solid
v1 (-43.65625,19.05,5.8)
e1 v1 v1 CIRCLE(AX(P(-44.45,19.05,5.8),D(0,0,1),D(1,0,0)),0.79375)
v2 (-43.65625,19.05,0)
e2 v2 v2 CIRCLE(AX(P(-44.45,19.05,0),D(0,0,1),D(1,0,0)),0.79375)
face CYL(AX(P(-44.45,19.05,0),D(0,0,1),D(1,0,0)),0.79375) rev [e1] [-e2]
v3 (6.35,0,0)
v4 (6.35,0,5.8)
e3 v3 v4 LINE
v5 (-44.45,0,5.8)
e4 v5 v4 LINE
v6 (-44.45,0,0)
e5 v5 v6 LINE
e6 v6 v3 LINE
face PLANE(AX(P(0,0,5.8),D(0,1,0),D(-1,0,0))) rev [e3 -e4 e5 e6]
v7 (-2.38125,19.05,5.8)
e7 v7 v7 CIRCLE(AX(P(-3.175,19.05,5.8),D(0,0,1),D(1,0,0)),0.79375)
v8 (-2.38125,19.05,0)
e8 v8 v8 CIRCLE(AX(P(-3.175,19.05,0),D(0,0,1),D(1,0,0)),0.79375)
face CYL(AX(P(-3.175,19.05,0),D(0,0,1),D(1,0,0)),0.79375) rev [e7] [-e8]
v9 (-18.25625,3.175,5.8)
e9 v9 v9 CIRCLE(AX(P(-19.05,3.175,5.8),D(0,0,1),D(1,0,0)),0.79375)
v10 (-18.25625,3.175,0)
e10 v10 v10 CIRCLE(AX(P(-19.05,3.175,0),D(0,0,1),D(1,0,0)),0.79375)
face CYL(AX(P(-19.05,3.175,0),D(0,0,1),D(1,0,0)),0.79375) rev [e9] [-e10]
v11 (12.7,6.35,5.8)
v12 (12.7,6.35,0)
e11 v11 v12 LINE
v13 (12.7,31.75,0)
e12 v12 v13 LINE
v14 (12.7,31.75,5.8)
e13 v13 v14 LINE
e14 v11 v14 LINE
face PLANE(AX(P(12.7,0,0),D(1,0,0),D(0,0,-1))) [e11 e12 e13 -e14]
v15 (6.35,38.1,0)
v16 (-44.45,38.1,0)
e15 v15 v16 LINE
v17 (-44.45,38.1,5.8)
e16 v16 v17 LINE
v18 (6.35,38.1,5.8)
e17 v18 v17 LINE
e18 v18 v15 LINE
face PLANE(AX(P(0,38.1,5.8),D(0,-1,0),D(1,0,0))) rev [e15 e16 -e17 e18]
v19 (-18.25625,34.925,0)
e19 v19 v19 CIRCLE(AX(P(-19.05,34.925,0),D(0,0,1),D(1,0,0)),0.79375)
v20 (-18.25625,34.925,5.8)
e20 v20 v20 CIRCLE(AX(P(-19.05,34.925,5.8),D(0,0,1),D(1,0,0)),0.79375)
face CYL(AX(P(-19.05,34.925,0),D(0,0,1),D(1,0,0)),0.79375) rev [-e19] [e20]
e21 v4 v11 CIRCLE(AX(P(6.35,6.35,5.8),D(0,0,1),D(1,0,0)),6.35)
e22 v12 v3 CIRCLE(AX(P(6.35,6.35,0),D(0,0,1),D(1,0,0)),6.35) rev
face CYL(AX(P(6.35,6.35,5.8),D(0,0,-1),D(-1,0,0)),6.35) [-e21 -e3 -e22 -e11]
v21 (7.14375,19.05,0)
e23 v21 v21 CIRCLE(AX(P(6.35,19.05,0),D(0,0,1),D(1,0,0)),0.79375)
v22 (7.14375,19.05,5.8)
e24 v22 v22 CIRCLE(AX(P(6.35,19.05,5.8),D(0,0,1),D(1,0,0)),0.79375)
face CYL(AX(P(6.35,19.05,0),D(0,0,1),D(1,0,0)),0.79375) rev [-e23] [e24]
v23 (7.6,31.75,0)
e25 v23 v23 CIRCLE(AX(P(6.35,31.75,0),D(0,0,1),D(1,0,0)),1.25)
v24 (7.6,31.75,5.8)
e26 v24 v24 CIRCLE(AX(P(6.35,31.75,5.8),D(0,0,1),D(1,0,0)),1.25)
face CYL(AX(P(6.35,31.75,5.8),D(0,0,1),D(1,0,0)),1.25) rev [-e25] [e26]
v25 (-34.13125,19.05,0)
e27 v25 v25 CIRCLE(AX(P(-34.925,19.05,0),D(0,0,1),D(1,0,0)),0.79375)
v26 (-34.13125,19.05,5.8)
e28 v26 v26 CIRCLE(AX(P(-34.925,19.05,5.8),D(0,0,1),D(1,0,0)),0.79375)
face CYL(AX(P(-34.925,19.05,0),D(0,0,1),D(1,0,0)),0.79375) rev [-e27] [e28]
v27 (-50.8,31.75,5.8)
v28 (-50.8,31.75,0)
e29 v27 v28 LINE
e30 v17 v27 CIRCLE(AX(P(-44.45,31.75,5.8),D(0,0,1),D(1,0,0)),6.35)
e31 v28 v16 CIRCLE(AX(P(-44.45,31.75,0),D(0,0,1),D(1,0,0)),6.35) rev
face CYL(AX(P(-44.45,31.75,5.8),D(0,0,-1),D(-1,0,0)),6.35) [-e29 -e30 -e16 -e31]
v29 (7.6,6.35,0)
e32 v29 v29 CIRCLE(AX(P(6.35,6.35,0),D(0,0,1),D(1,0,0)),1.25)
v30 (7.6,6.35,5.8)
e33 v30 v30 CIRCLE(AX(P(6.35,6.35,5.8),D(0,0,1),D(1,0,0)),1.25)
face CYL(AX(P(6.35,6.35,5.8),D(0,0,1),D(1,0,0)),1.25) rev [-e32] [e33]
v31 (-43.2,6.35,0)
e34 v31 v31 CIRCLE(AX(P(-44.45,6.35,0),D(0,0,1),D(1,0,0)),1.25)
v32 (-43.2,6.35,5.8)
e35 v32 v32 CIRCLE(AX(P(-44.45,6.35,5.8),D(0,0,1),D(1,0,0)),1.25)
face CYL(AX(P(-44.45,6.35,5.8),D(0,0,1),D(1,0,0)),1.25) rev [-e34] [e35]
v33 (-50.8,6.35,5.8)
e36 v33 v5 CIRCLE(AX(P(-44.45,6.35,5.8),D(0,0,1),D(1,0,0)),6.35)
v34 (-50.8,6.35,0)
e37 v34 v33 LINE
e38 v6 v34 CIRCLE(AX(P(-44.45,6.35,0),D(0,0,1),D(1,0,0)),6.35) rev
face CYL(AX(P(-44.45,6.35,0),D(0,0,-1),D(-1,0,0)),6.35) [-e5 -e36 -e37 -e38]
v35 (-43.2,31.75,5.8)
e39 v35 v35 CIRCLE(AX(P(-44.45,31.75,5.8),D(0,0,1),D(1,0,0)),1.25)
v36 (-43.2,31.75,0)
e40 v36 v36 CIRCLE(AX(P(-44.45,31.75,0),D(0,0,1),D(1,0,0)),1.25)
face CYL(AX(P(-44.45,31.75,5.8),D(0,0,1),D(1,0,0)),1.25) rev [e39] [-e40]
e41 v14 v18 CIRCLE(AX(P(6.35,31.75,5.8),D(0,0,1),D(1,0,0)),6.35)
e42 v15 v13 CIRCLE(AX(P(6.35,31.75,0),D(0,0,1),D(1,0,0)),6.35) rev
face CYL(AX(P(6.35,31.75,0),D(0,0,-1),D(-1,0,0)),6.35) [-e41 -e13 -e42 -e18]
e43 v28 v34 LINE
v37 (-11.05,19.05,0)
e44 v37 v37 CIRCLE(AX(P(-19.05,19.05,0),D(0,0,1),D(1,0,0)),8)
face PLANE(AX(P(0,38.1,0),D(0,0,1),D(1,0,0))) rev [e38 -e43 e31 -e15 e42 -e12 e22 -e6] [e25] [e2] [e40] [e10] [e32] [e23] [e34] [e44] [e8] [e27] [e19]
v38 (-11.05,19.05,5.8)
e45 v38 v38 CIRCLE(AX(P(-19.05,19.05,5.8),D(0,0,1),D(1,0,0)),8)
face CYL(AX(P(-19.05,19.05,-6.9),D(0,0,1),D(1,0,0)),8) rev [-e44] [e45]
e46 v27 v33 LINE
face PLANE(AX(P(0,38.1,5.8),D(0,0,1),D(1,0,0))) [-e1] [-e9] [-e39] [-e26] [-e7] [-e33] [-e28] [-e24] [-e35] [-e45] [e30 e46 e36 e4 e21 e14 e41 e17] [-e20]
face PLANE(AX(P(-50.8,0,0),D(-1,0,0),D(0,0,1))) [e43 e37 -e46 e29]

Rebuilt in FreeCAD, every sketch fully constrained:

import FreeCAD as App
import Part
import Sketcher
from FreeCAD import Vector


def edges_at(feature, points):
    """Names of the edges that pass closest to the given points."""
    edges = feature.Shape.Edges
    near = lambda p: min(range(len(edges)), key=lambda i: edges[i].distToShape(Part.Vertex(*p))[0])
    return sorted({f"Edge{near(p) + 1}" for p in points})


def add_polygon(sketch, points):
    """Adds a closed chain of lines whose ends are joined by coincident constraints."""
    first, n = sketch.GeometryCount, len(points)
    for a, b in zip(points, points[1:] + points[:1]):
        sketch.addGeometry(Part.LineSegment(App.Vector(*a, 0), App.Vector(*b, 0)), False)
    for i in range(n):
        sketch.addConstraint(Sketcher.Constraint("Coincident", first + i, 2, first + (i + 1) % n, 1))

doc = App.newDocument("Part")
params = doc.addObject("Spreadsheet::Sheet", "Params")
for row, (alias, value) in enumerate([
    ("sketch1_width", "38.1 mm"),
    ("pad1_length", "5.8 mm"),
    ("sketch2_diameter", "16 mm"),
    ("pocket1_length", "12.7 mm"),
    ("sketch4_width", "12.7 mm"),
    ("sketch4_height", "38.1 mm"),
    ("pad2_length", "5.8 mm"),
    ("sketch5_diameter", "2.5 mm"),
    ("hole_diameter", "2.5 mm"),
    ("hole_depth", "7.5 mm"),
    ("fillet_radius", "6.35 mm"),
], start=1):
    params.set(f"A{row}", alias)
    params.set(f"B{row}", "=" + value)
    params.setAlias(f"B{row}", alias)

body = doc.addObject("PartDesign::Body", "Body")

sketch1 = doc.addObject("Sketcher::SketchObject", "Sketch")
body.addObject(sketch1)
sketch1.AttachmentSupport = (doc.XY_Plane, [""])
sketch1.MapMode = "FlatFace"
add_polygon(sketch1, [(-38, 38), (-38, 0), (0, 0), (0, 38)])
sketch1.addConstraint(Sketcher.Constraint("Vertical", 0))
sketch1.addConstraint(Sketcher.Constraint("Horizontal", 1))
sketch1.addConstraint(Sketcher.Constraint("Vertical", 2))
sketch1.addConstraint(Sketcher.Constraint("Horizontal", 3))
sketch1.addConstraint(Sketcher.Constraint("Coincident", 1, 2, -1, 1))
sketch1.addConstraint(Sketcher.Constraint("Equal", 3, 0))
sketch1.addConstraint(Sketcher.Constraint("DistanceX", 1, 1, 1, 2, 38.1))
sketch1.setExpression("Constraints[10]", "Params.sketch1_width")
pad1 = doc.addObject("PartDesign::Pad", "Pad")
body.addObject(pad1)
pad1.Profile = sketch1
pad1.setExpression("Length", "Params.pad1_length")

sketch2 = doc.addObject("Sketcher::SketchObject", "Sketch001")
body.addObject(sketch2)
sketch2.AttachmentSupport = (doc.XY_Plane, [""])
sketch2.MapMode = "FlatFace"
sketch2.AttachmentOffset = App.Placement(Vector(0, 0, 5.8), App.Rotation())
sketch2.addGeometry(Part.Circle(Vector(-19, 19, 0), Vector(0, 0, 1), 8), False)
sketch2.addConstraint(Sketcher.Constraint("Diameter", 0, 16.0))
sketch2.addConstraint(Sketcher.Constraint("DistanceX", 0, 3, -1, 1, 19.05))
sketch2.addConstraint(Sketcher.Constraint("DistanceY", -1, 1, 0, 3, 19.05))
sketch2.setExpression("Constraints[0]", "Params.sketch2_diameter")
pocket1 = doc.addObject("PartDesign::Pocket", "Pocket")
body.addObject(pocket1)
pocket1.Profile = sketch2
pocket1.setExpression("Length", "Params.pocket1_length")

sketch3 = doc.addObject("Sketcher::SketchObject", "Sketch002")
body.addObject(sketch3)
sketch3.AttachmentSupport = (doc.XY_Plane, [""])
sketch3.MapMode = "FlatFace"
sketch3.AttachmentOffset = App.Placement(Vector(0, 0, 5.8), App.Rotation())
sketch3.addGeometry(Part.Circle(Vector(-34.9, 19.1, 0), Vector(0, 0, 1), 0.8), False)
sketch3.addGeometry(Part.Circle(Vector(-19.1, 34.9, 0), Vector(0, 0, 1), 0.8), False)
sketch3.addGeometry(Part.Circle(Vector(-3.2, 19.1, 0), Vector(0, 0, 1), 0.8), False)
sketch3.addGeometry(Part.Circle(Vector(-19.1, 3.2, 0), Vector(0, 0, 1), 0.8), False)
sketch3.addConstraint(Sketcher.Constraint("Equal", 0, 1))
sketch3.addConstraint(Sketcher.Constraint("Equal", 1, 2))
sketch3.addConstraint(Sketcher.Constraint("Equal", 2, 3))
sketch3.addConstraint(Sketcher.Constraint("Horizontal", 0, 3, 2, 3))
sketch3.addConstraint(Sketcher.Constraint("Vertical", 1, 3, 3, 3))
sketch3.addConstraint(Sketcher.Constraint("Diameter", 0, 1.5875))
sketch3.addConstraint(Sketcher.Constraint("DistanceY", -1, 1, 0, 3, 19.05))
sketch3.addConstraint(Sketcher.Constraint("DistanceX", 1, 3, -1, 1, 19.05))
sketch3.addConstraint(Sketcher.Constraint("DistanceX", 0, 3, 2, 3, 31.75))
sketch3.addConstraint(Sketcher.Constraint("DistanceY", 3, 3, 1, 3, 31.75))
sketch3.addConstraint(Sketcher.Constraint("DistanceX", 0, 3, -1, 1, 34.925))
sketch3.addConstraint(Sketcher.Constraint("DistanceY", -1, 1, 1, 3, 34.925))
pocket2 = doc.addObject("PartDesign::Pocket", "Pocket001")
body.addObject(pocket2)
pocket2.Profile = sketch3
pocket2.Type = "ThroughAll"

sketch4 = doc.addObject("Sketcher::SketchObject", "Sketch003")
body.addObject(sketch4)
sketch4.AttachmentSupport = (doc.XY_Plane, [""])
sketch4.MapMode = "FlatFace"
sketch4.AttachmentOffset = App.Placement(Vector(0, 0, 5.8), App.Rotation())
add_polygon(sketch4, [(0, 38), (0, 0), (13, 0), (13, 38)])
add_polygon(sketch4, [(-51, 38), (-51, 0), (-38, 0), (-38, 38)])
sketch4.addConstraint(Sketcher.Constraint("Vertical", 0))
sketch4.addConstraint(Sketcher.Constraint("Horizontal", 1))
sketch4.addConstraint(Sketcher.Constraint("Vertical", 2))
sketch4.addConstraint(Sketcher.Constraint("Horizontal", 3))
sketch4.addConstraint(Sketcher.Constraint("Vertical", 4))
sketch4.addConstraint(Sketcher.Constraint("Horizontal", 5))
sketch4.addConstraint(Sketcher.Constraint("Vertical", 6))
sketch4.addConstraint(Sketcher.Constraint("Horizontal", 7))
sketch4.addConstraint(Sketcher.Constraint("Coincident", 0, 2, -1, 1))
sketch4.addConstraint(Sketcher.Constraint("PointOnObject", 4, 2, -1))
sketch4.addConstraint(Sketcher.Constraint("Horizontal", 3, 2, 6, 2))
sketch4.addConstraint(Sketcher.Constraint("Equal", 3, 5))
sketch4.addConstraint(Sketcher.Constraint("DistanceX", 1, 1, 1, 2, 12.7))
sketch4.addConstraint(Sketcher.Constraint("DistanceY", 0, 2, 0, 1, 38.1))
sketch4.addConstraint(Sketcher.Constraint("DistanceX", 4, 2, -1, 1, 50.8))
sketch4.setExpression("Constraints[20]", "Params.sketch4_width")
sketch4.setExpression("Constraints[21]", "Params.sketch4_height")
pad2 = doc.addObject("PartDesign::Pad", "Pad001")
body.addObject(pad2)
pad2.Profile = sketch4
pad2.setExpression("Length", "Params.pad2_length")
pad2.Reversed = True

sketch5 = doc.addObject("Sketcher::SketchObject", "Sketch004")
body.addObject(sketch5)
sketch5.AttachmentSupport = (doc.XY_Plane, [""])
sketch5.MapMode = "FlatFace"
sketch5.AttachmentOffset = App.Placement(Vector(0, 0, 5.8), App.Rotation())
sketch5.addGeometry(Part.Circle(Vector(-44.5, 31.8, 0), Vector(0, 0, 1), 1.2), False)
sketch5.addGeometry(Part.Circle(Vector(6.3, 31.8, 0), Vector(0, 0, 1), 1.2), False)
sketch5.addGeometry(Part.Circle(Vector(6.3, 6.3, 0), Vector(0, 0, 1), 1.2), False)
sketch5.addGeometry(Part.Circle(Vector(-44.5, 6.3, 0), Vector(0, 0, 1), 1.2), False)
sketch5.addConstraint(Sketcher.Constraint("Equal", 0, 1))
sketch5.addConstraint(Sketcher.Constraint("Equal", 1, 2))
sketch5.addConstraint(Sketcher.Constraint("Equal", 2, 3))
sketch5.addConstraint(Sketcher.Constraint("Horizontal", 0, 3, 1, 3))
sketch5.addConstraint(Sketcher.Constraint("Horizontal", 2, 3, 3, 3))
sketch5.addConstraint(Sketcher.Constraint("Vertical", 1, 3, 2, 3))
sketch5.addConstraint(Sketcher.Constraint("Vertical", 0, 3, 3, 3))
sketch5.addConstraint(Sketcher.Constraint("Diameter", 0, 2.5))
sketch5.addConstraint(Sketcher.Constraint("DistanceX", 0, 3, 1, 3, 50.8))
sketch5.addConstraint(Sketcher.Constraint("DistanceY", 2, 3, 1, 3, 25.4))
sketch5.addConstraint(Sketcher.Constraint("DistanceX", 0, 3, -1, 1, 44.45))
sketch5.addConstraint(Sketcher.Constraint("DistanceY", -1, 1, 0, 3, 31.75))
sketch5.setExpression("Constraints[7]", "Params.sketch5_diameter")
doc.recompute()
hole = doc.addObject("PartDesign::Hole", "Hole")
body.addObject(hole)
hole.Profile = sketch5
hole.ThreadType = "None"
hole.setExpression("Diameter", "Params.hole_diameter")
hole.DepthType = "Dimension"
hole.setExpression("Depth", "Params.hole_depth")
hole.DrillPoint = "Angled"
hole.DrillPointAngle = 118

sketch6 = doc.addObject("Sketcher::SketchObject", "Sketch005")
body.addObject(sketch6)
sketch6.AttachmentSupport = (doc.XY_Plane, [""])
sketch6.MapMode = "FlatFace"
sketch6.AttachmentOffset = App.Placement(Vector(0, 0, 5.8), App.Rotation())
sketch6.addGeometry(Part.Circle(Vector(-44.5, 19.1, 0), Vector(0, 0, 1), 0.8), False)
sketch6.addGeometry(Part.Circle(Vector(6.3, 19.1, 0), Vector(0, 0, 1), 0.8), False)
sketch6.addConstraint(Sketcher.Constraint("Equal", 0, 1))
sketch6.addConstraint(Sketcher.Constraint("Horizontal", 0, 3, 1, 3))
sketch6.addConstraint(Sketcher.Constraint("Diameter", 0, 1.5875))
sketch6.addConstraint(Sketcher.Constraint("DistanceX", 0, 3, 1, 3, 50.8))
sketch6.addConstraint(Sketcher.Constraint("DistanceX", 0, 3, -1, 1, 44.45))
sketch6.addConstraint(Sketcher.Constraint("DistanceY", -1, 1, 0, 3, 19.05))
pocket3 = doc.addObject("PartDesign::Pocket", "Pocket002")
body.addObject(pocket3)
pocket3.Profile = sketch6
pocket3.Type = "ThroughAll"
doc.recompute()

fillet = doc.addObject("PartDesign::Fillet", "Fillet")
body.addObject(fillet)
fillet.Base = (pocket3, edges_at(pocket3, [
    (12.7, 38.1, 2.9),
    (12.7, 0, 2.9),
    (-50.8, 0, 2.9),
    (-50.8, 38.1, 2.9),
]))
fillet.setExpression("Radius", "Params.fillet_radius")

doc.recompute()
